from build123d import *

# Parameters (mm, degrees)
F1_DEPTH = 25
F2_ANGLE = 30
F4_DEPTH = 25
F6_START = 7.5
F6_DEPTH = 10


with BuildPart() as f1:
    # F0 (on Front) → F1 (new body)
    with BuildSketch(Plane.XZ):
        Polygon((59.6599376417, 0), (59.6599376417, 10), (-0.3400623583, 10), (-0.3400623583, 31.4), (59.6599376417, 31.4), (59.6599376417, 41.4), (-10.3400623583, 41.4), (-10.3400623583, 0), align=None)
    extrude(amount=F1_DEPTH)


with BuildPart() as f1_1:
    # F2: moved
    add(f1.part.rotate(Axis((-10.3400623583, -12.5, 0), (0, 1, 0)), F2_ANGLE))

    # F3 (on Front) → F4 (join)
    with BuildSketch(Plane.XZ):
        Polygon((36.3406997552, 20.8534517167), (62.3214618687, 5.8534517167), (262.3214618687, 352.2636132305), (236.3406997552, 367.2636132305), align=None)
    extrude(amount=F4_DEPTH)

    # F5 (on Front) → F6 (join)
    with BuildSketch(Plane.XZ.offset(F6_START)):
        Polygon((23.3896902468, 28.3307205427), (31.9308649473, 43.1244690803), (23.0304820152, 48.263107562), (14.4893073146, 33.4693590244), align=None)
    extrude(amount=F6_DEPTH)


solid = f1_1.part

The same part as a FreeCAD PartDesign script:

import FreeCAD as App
import Part
import Sketcher
Q = App.Units.Quantity

doc = App.newDocument("Part")
params = doc.addObject("Spreadsheet::Sheet", "Params")
for row, (alias, value) in enumerate([
    ("sketch1_width", "60 mm"),
    ("sketch1_width2", "70 mm"),
    ("sketch1_height", "10 mm"),
    ("sketch1_height2", "21.4 mm"),
    ("pad1_length", "25 mm"),
    ("sketch2_length", "30 mm"),
    ("sketch2_length2", "400 mm"),
    ("pad2_length", "25 mm"),
    ("pad3_length", "10 mm"),
], start=1):
    params.set(f"A{row}", alias)
    params.set(f"B{row}", "=" + value)
    params.setAlias(f"B{row}", alias)

body = doc.addObject("PartDesign::Body", "Body")

# Sketch on XZ plane
sketch1 = doc.addObject("Sketcher::SketchObject", "Sketch")
body.addObject(sketch1)
sketch1.AttachmentSupport = (doc.XZ_Plane, [""])
sketch1.MapMode = "FlatFace"
sketch1.addGeometry(Part.LineSegment(App.Vector(60, 0, 0), App.Vector(60, 10, 0)), False)
sketch1.addGeometry(Part.LineSegment(App.Vector(60, 10, 0), App.Vector(0, 10, 0)), False)
sketch1.addGeometry(Part.LineSegment(App.Vector(0, 10, 0), App.Vector(0, 31, 0)), False)
sketch1.addGeometry(Part.LineSegment(App.Vector(0, 31, 0), App.Vector(60, 31, 0)), False)
sketch1.addGeometry(Part.LineSegment(App.Vector(60, 31, 0), App.Vector(60, 41, 0)), False)
sketch1.addGeometry(Part.LineSegment(App.Vector(60, 41, 0), App.Vector(-10, 41, 0)), False)
sketch1.addGeometry(Part.LineSegment(App.Vector(-10, 41, 0), App.Vector(-10, 0, 0)), False)
sketch1.addGeometry(Part.LineSegment(App.Vector(-10, 0, 0), App.Vector(60, 0, 0)), False)
sketch1.addConstraint(Sketcher.Constraint("Coincident", 0, 2, 1, 1))
sketch1.addConstraint(Sketcher.Constraint("Coincident", 1, 2, 2, 1))
sketch1.addConstraint(Sketcher.Constraint("Coincident", 2, 2, 3, 1))
sketch1.addConstraint(Sketcher.Constraint("Coincident", 3, 2, 4, 1))
sketch1.addConstraint(Sketcher.Constraint("Coincident", 4, 2, 5, 1))
sketch1.addConstraint(Sketcher.Constraint("Coincident", 5, 2, 6, 1))
sketch1.addConstraint(Sketcher.Constraint("Coincident", 6, 2, 7, 1))
sketch1.addConstraint(Sketcher.Constraint("Coincident", 7, 2, 0, 1))
sketch1.addConstraint(Sketcher.Constraint("Vertical", 0))
sketch1.addConstraint(Sketcher.Constraint("Horizontal", 1))
sketch1.addConstraint(Sketcher.Constraint("Vertical", 2))
sketch1.addConstraint(Sketcher.Constraint("Horizontal", 3))
sketch1.addConstraint(Sketcher.Constraint("Vertical", 4))
sketch1.addConstraint(Sketcher.Constraint("Horizontal", 5))
sketch1.addConstraint(Sketcher.Constraint("Vertical", 6))
sketch1.addConstraint(Sketcher.Constraint("Horizontal", 7))
sketch1.addConstraint(Sketcher.Constraint("PointOnObject", 6, 2, -1))
sketch1.addConstraint(Sketcher.Constraint("Vertical", 0, 2, 3, 2))
sketch1.addConstraint(Sketcher.Constraint("Equal", 0, 4))
sketch1.addConstraint(Sketcher.Constraint("DistanceX", 1, 2, 1, 1, Q("60 mm")))
sketch1.addConstraint(Sketcher.Constraint("DistanceX", 5, 2, 5, 1, Q("70 mm")))
sketch1.addConstraint(Sketcher.Constraint("DistanceY", 0, 1, 0, 2, Q("10 mm")))
sketch1.addConstraint(Sketcher.Constraint("DistanceY", 2, 1, 2, 2, Q("21.4 mm")))
sketch1.addConstraint(Sketcher.Constraint("DistanceX", -1, 1, 0, 2, Q("59.659938 mm")))
sketch1.setExpression("Constraints[19]", "Params.sketch1_width")
sketch1.setExpression("Constraints[20]", "Params.sketch1_width2")
sketch1.setExpression("Constraints[21]", "Params.sketch1_height")
sketch1.setExpression("Constraints[22]", "Params.sketch1_height2")
pad1 = doc.addObject("PartDesign::Pad", "Pad")
body.addObject(pad1)
pad1.Profile = sketch1
pad1.setExpression("Length", "Params.pad1_length")
body2 = doc.addObject("PartDesign::Body", "Body001")
doc.recompute()

body.Placement = App.Placement(App.Vector(-1.385306, 0, -5.170031), App.Rotation(App.Vector(0, 1, 0), 30))
boolean = doc.addObject("PartDesign::Boolean", "Boolean")
body2.addObject(boolean)
boolean.Type = "Fuse"
boolean.addObjects([body])

# Sketch on XZ plane
sketch2 = doc.addObject("Sketcher::SketchObject", "Sketch001")
body2.addObject(sketch2)
sketch2.AttachmentSupport = (doc.getObject("XZ_Plane001"), [""])
sketch2.MapMode = "FlatFace"
sketch2.addGeometry(Part.LineSegment(App.Vector(36, 21, 0), App.Vector(62, 6, 0)), False)
sketch2.addGeometry(Part.LineSegment(App.Vector(62, 6, 0), App.Vector(262, 352, 0)), False)
sketch2.addGeometry(Part.LineSegment(App.Vector(262, 352, 0), App.Vector(236, 367, 0)), False)
sketch2.addGeometry(Part.LineSegment(App.Vector(236, 367, 0), App.Vector(36, 21, 0)), False)
sketch2.addConstraint(Sketcher.Constraint("Coincident", 0, 2, 1, 1))
sketch2.addConstraint(Sketcher.Constraint("Coincident", 1, 2, 2, 1))
sketch2.addConstraint(Sketcher.Constraint("Coincident", 2, 2, 3, 1))
sketch2.addConstraint(Sketcher.Constraint("Coincident", 3, 2, 0, 1))
sketch2.addConstraint(Sketcher.Constraint("Perpendicular", 0, 1))
sketch2.addConstraint(Sketcher.Constraint("Perpendicular", 1, 2))
sketch2.addConstraint(Sketcher.Constraint("Perpendicular", 2, 3))
sketch2.addConstraint(Sketcher.Constraint("Angle", 0, Q("-30 deg")))
sketch2.addConstraint(Sketcher.Constraint("Distance", 0, Q("30 mm")))
sketch2.addConstraint(Sketcher.Constraint("Distance", 1, Q("400 mm")))
sketch2.addConstraint(Sketcher.Constraint("DistanceX", -1, 1, 2, 2, Q("236.3407 mm")))
sketch2.addConstraint(Sketcher.Constraint("DistanceY", -1, 1, 0, 2, Q("5.853452 mm")))
sketch2.setExpression("Constraints[8]", "Params.sketch2_length")
sketch2.setExpression("Constraints[9]", "Params.sketch2_length2")
pad2 = doc.addObject("PartDesign::Pad", "Pad001")
body2.addObject(pad2)
pad2.Profile = sketch2
pad2.setExpression("Length", "Params.pad2_length")

# Sketch on XZ plane
sketch3 = doc.addObject("Sketcher::SketchObject", "Sketch002")
body2.addObject(sketch3)
sketch3.AttachmentSupport = (doc.getObject("XZ_Plane001"), [""])
sketch3.MapMode = "FlatFace"
sketch3.AttachmentOffset = App.Placement(App.Vector(0, 0, 7.5), App.Rotation())
sketch3.addGeometry(Part.LineSegment(App.Vector(23, 28, 0), App.Vector(32, 43, 0)), False)
sketch3.addGeometry(Part.LineSegment(App.Vector(32, 43, 0), App.Vector(23, 48, 0)), False)
sketch3.addGeometry(Part.LineSegment(App.Vector(23, 48, 0), App.Vector(14, 33, 0)), False)
sketch3.addGeometry(Part.LineSegment(App.Vector(14, 33, 0), App.Vector(23, 28, 0)), False)
sketch3.addConstraint(Sketcher.Constraint("Coincident", 0, 2, 1, 1))
sketch3.addConstraint(Sketcher.Constraint("Coincident", 1, 2, 2, 1))
sketch3.addConstraint(Sketcher.Constraint("Coincident", 2, 2, 3, 1))
sketch3.addConstraint(Sketcher.Constraint("Coincident", 3, 2, 0, 1))
sketch3.addConstraint(Sketcher.Constraint("Perpendicular", 0, 1))
sketch3.addConstraint(Sketcher.Constraint("Perpendicular", 1, 2))
sketch3.addConstraint(Sketcher.Constraint("Perpendicular", 2, 3))
sketch3.addConstraint(Sketcher.Constraint("Angle", 0, Q("60 deg")))
sketch3.addConstraint(Sketcher.Constraint("Distance", 0, Q("17.082349 mm")))
sketch3.addConstraint(Sketcher.Constraint("DistanceY", -1, 1, 0, 2, Q("43.124469 mm")))
sketch3.addConstraint(Sketcher.Constraint("DistanceY", -1, 1, 2, 2, Q("33.469359 mm")))
sketch3.addConstraint(Sketcher.Constraint("DistanceX", -1, 1, 3, 2, Q("23.38969 mm")))
pad3 = doc.addObject("PartDesign::Pad", "Pad002")
body2.addObject(pad3)
pad3.Profile = sketch3
pad3.setExpression("Length", "Params.pad3_length")

doc.recompute()
